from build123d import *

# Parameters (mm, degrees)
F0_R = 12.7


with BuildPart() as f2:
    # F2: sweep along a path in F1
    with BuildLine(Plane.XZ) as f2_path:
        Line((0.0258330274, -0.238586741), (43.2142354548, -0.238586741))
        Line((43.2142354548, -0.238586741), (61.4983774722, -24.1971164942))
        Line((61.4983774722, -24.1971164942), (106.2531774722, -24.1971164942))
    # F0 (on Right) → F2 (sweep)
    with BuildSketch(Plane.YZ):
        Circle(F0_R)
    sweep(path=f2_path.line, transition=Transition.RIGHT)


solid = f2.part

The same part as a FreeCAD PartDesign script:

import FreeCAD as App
import Part
import Sketcher

V = App.Vector
Q = App.Units.Quantity

doc = App.newDocument("Part")
body = doc.addObject("PartDesign::Body", "Body")

# Sketch on YZ plane
sketch1 = body.newObject("Sketcher::SketchObject", "Sketch")
sketch1.AttachmentSupport = (doc.getObject("YZ_Plane"), [""])
sketch1.MapMode = "FlatFace"
sketch1.addGeometry(Part.Circle(V(0, 0, 0), V(0, 0, 1), 13), False)
sketch1.addConstraint([
    Sketcher.Constraint("Coincident", 0, 3, -1, 1),
    Sketcher.Constraint("Diameter", 0, Q("1 in")),
])

# Sketch on XZ plane
sketch2 = body.newObject("Sketcher::SketchObject", "Sketch001")
sketch2.AttachmentSupport = (doc.getObject("XZ_Plane"), [""])
sketch2.MapMode = "FlatFace"
sketch2.addGeometry([
    Part.LineSegment(V(0, 0, 0), V(43, 0, 0)),
    Part.LineSegment(V(43, 0, 0), V(61, -24, 0)),
    Part.LineSegment(V(61, -24, 0), V(106, -24, 0)),
], False)
sketch2.addConstraint([
    Sketcher.Constraint("Coincident", 0, 2, 1, 1),
    Sketcher.Constraint("Coincident", 1, 2, 2, 1),
    Sketcher.Constraint("Horizontal", 0),
    Sketcher.Constraint("Horizontal", 2),
    Sketcher.Constraint("DistanceX", 2, 1, 2, 2, Q("1.762 in")),
    Sketcher.Constraint("DistanceX", 0, 1, 0, 2, 43.188402),
    Sketcher.Constraint("DistanceY", 1, 2, 0, 2, 23.95853),
    Sketcher.Constraint("Distance", 1, 30.138364),
    Sketcher.Constraint("DistanceX", -1, 1, 0, 1, 0.025833),
    Sketcher.Constraint("DistanceY", 0, 1, -1, 1, 0.238587),
])
doc.recompute()

additivepipe = body.newObject("PartDesign::AdditivePipe", "AdditivePipe")
additivepipe.Profile = sketch1
additivepipe.Spine = (sketch2, ["Edge1", "Edge2", "Edge3"])
additivepipe.Transition = "Right corner"

doc.recompute()
